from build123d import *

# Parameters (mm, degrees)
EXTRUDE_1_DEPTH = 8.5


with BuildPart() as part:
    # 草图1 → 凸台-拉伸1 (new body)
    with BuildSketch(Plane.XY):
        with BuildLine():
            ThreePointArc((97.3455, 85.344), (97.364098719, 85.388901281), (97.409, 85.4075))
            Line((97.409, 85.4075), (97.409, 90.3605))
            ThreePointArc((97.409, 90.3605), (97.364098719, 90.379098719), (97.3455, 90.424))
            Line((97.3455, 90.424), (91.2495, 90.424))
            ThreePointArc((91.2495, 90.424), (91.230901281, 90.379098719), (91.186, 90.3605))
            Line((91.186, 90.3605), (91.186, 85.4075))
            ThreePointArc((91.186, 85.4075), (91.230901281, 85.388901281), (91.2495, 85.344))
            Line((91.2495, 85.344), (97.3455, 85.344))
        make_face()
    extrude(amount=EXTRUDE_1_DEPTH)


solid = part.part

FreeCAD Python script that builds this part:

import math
import FreeCAD as App
import Part
import Sketcher

V = App.Vector
Q = App.Units.Quantity

doc = App.newDocument("Part")
body = doc.addObject("PartDesign::Body", "Body")

# Sketch on XY plane
sketch1 = body.newObject("Sketcher::SketchObject", "Sketch")
sketch1.AttachmentSupport = (doc.getObject("XY_Plane"), [""])
sketch1.MapMode = "FlatFace"
sketch1.addGeometry([
    Part.ArcOfCircle(Part.Circle(V(97.41, 85.34, 0), V(0, 0, 1), 0.06), math.radians(90), math.radians(180)),  # 0
    Part.LineSegment(V(97.41, 85.41, 0), V(97.41, 90.36, 0)),  # 1
    Part.ArcOfCircle(Part.Circle(V(97.41, 90.42, 0), V(0, 0, 1), 0.06), math.radians(180), math.radians(270)),  # 2
    Part.LineSegment(V(97.35, 90.42, 0), V(91.25, 90.42, 0)),  # 3
    Part.ArcOfCircle(Part.Circle(V(91.19, 90.42, 0), V(0, 0, 1), 0.06), math.radians(-90), math.radians(0)),  # 4
    Part.LineSegment(V(91.19, 90.36, 0), V(91.19, 85.41, 0)),  # 5
    Part.ArcOfCircle(Part.Circle(V(91.19, 85.34, 0), V(0, 0, 1), 0.06), math.radians(0), math.radians(90)),  # 6
    Part.LineSegment(V(91.25, 85.34, 0), V(97.35, 85.34, 0)),  # 7
], False)
sketch1.addConstraint([
    Sketcher.Constraint("Coincident", 0, 1, 1, 1),
    Sketcher.Constraint("Coincident", 1, 2, 2, 2),
    Sketcher.Constraint("Coincident", 2, 1, 3, 1),
    Sketcher.Constraint("Coincident", 3, 2, 4, 2),
    Sketcher.Constraint("Coincident", 4, 1, 5, 1),
    Sketcher.Constraint("Coincident", 5, 2, 6, 2),
    Sketcher.Constraint("Coincident", 6, 1, 7, 1),
    Sketcher.Constraint("Coincident", 7, 2, 0, 2),
    Sketcher.Constraint("Vertical", 1),
    Sketcher.Constraint("Horizontal", 3),
    Sketcher.Constraint("Vertical", 5),
    Sketcher.Constraint("Horizontal", 7),
    Sketcher.Constraint("Equal", 0, 2),
    Sketcher.Constraint("Equal", 2, 4),
    Sketcher.Constraint("Equal", 4, 6),
    Sketcher.Constraint("Horizontal", 2, 3, 4, 3),
    Sketcher.Constraint("Horizontal", 0, 3, 6, 3),
    Sketcher.Constraint("Horizontal", 4, 3, 2, 1),
    Sketcher.Constraint("Horizontal", 0, 3, 6, 1),
    Sketcher.Constraint("Vertical", 0, 3, 2, 3),
    Sketcher.Constraint("Vertical", 4, 3, 6, 3),
    Sketcher.Constraint("Vertical", 2, 3, 0, 1),
    Sketcher.Constraint("Vertical", 6, 3, 4, 1),
    Sketcher.Constraint("DistanceX", 3, 2, 3, 1, Q("0.24 in")),
    Sketcher.Constraint("Radius", 0, Q("0.0025 in")),
    Sketcher.Constraint("DistanceY", 0, 3, 2, 3, Q("0.2 in")),
    Sketcher.Constraint("DistanceY", -1, 1, 0, 3, Q("3.36 in")),
    Sketcher.Constraint("DistanceX", -1, 1, 4, 3, Q("3.59 in")),
])
pad1 = body.newObject("PartDesign::Pad", "Pad")
pad1.Profile = sketch1
pad1.Length = 8.5

doc.recompute()
